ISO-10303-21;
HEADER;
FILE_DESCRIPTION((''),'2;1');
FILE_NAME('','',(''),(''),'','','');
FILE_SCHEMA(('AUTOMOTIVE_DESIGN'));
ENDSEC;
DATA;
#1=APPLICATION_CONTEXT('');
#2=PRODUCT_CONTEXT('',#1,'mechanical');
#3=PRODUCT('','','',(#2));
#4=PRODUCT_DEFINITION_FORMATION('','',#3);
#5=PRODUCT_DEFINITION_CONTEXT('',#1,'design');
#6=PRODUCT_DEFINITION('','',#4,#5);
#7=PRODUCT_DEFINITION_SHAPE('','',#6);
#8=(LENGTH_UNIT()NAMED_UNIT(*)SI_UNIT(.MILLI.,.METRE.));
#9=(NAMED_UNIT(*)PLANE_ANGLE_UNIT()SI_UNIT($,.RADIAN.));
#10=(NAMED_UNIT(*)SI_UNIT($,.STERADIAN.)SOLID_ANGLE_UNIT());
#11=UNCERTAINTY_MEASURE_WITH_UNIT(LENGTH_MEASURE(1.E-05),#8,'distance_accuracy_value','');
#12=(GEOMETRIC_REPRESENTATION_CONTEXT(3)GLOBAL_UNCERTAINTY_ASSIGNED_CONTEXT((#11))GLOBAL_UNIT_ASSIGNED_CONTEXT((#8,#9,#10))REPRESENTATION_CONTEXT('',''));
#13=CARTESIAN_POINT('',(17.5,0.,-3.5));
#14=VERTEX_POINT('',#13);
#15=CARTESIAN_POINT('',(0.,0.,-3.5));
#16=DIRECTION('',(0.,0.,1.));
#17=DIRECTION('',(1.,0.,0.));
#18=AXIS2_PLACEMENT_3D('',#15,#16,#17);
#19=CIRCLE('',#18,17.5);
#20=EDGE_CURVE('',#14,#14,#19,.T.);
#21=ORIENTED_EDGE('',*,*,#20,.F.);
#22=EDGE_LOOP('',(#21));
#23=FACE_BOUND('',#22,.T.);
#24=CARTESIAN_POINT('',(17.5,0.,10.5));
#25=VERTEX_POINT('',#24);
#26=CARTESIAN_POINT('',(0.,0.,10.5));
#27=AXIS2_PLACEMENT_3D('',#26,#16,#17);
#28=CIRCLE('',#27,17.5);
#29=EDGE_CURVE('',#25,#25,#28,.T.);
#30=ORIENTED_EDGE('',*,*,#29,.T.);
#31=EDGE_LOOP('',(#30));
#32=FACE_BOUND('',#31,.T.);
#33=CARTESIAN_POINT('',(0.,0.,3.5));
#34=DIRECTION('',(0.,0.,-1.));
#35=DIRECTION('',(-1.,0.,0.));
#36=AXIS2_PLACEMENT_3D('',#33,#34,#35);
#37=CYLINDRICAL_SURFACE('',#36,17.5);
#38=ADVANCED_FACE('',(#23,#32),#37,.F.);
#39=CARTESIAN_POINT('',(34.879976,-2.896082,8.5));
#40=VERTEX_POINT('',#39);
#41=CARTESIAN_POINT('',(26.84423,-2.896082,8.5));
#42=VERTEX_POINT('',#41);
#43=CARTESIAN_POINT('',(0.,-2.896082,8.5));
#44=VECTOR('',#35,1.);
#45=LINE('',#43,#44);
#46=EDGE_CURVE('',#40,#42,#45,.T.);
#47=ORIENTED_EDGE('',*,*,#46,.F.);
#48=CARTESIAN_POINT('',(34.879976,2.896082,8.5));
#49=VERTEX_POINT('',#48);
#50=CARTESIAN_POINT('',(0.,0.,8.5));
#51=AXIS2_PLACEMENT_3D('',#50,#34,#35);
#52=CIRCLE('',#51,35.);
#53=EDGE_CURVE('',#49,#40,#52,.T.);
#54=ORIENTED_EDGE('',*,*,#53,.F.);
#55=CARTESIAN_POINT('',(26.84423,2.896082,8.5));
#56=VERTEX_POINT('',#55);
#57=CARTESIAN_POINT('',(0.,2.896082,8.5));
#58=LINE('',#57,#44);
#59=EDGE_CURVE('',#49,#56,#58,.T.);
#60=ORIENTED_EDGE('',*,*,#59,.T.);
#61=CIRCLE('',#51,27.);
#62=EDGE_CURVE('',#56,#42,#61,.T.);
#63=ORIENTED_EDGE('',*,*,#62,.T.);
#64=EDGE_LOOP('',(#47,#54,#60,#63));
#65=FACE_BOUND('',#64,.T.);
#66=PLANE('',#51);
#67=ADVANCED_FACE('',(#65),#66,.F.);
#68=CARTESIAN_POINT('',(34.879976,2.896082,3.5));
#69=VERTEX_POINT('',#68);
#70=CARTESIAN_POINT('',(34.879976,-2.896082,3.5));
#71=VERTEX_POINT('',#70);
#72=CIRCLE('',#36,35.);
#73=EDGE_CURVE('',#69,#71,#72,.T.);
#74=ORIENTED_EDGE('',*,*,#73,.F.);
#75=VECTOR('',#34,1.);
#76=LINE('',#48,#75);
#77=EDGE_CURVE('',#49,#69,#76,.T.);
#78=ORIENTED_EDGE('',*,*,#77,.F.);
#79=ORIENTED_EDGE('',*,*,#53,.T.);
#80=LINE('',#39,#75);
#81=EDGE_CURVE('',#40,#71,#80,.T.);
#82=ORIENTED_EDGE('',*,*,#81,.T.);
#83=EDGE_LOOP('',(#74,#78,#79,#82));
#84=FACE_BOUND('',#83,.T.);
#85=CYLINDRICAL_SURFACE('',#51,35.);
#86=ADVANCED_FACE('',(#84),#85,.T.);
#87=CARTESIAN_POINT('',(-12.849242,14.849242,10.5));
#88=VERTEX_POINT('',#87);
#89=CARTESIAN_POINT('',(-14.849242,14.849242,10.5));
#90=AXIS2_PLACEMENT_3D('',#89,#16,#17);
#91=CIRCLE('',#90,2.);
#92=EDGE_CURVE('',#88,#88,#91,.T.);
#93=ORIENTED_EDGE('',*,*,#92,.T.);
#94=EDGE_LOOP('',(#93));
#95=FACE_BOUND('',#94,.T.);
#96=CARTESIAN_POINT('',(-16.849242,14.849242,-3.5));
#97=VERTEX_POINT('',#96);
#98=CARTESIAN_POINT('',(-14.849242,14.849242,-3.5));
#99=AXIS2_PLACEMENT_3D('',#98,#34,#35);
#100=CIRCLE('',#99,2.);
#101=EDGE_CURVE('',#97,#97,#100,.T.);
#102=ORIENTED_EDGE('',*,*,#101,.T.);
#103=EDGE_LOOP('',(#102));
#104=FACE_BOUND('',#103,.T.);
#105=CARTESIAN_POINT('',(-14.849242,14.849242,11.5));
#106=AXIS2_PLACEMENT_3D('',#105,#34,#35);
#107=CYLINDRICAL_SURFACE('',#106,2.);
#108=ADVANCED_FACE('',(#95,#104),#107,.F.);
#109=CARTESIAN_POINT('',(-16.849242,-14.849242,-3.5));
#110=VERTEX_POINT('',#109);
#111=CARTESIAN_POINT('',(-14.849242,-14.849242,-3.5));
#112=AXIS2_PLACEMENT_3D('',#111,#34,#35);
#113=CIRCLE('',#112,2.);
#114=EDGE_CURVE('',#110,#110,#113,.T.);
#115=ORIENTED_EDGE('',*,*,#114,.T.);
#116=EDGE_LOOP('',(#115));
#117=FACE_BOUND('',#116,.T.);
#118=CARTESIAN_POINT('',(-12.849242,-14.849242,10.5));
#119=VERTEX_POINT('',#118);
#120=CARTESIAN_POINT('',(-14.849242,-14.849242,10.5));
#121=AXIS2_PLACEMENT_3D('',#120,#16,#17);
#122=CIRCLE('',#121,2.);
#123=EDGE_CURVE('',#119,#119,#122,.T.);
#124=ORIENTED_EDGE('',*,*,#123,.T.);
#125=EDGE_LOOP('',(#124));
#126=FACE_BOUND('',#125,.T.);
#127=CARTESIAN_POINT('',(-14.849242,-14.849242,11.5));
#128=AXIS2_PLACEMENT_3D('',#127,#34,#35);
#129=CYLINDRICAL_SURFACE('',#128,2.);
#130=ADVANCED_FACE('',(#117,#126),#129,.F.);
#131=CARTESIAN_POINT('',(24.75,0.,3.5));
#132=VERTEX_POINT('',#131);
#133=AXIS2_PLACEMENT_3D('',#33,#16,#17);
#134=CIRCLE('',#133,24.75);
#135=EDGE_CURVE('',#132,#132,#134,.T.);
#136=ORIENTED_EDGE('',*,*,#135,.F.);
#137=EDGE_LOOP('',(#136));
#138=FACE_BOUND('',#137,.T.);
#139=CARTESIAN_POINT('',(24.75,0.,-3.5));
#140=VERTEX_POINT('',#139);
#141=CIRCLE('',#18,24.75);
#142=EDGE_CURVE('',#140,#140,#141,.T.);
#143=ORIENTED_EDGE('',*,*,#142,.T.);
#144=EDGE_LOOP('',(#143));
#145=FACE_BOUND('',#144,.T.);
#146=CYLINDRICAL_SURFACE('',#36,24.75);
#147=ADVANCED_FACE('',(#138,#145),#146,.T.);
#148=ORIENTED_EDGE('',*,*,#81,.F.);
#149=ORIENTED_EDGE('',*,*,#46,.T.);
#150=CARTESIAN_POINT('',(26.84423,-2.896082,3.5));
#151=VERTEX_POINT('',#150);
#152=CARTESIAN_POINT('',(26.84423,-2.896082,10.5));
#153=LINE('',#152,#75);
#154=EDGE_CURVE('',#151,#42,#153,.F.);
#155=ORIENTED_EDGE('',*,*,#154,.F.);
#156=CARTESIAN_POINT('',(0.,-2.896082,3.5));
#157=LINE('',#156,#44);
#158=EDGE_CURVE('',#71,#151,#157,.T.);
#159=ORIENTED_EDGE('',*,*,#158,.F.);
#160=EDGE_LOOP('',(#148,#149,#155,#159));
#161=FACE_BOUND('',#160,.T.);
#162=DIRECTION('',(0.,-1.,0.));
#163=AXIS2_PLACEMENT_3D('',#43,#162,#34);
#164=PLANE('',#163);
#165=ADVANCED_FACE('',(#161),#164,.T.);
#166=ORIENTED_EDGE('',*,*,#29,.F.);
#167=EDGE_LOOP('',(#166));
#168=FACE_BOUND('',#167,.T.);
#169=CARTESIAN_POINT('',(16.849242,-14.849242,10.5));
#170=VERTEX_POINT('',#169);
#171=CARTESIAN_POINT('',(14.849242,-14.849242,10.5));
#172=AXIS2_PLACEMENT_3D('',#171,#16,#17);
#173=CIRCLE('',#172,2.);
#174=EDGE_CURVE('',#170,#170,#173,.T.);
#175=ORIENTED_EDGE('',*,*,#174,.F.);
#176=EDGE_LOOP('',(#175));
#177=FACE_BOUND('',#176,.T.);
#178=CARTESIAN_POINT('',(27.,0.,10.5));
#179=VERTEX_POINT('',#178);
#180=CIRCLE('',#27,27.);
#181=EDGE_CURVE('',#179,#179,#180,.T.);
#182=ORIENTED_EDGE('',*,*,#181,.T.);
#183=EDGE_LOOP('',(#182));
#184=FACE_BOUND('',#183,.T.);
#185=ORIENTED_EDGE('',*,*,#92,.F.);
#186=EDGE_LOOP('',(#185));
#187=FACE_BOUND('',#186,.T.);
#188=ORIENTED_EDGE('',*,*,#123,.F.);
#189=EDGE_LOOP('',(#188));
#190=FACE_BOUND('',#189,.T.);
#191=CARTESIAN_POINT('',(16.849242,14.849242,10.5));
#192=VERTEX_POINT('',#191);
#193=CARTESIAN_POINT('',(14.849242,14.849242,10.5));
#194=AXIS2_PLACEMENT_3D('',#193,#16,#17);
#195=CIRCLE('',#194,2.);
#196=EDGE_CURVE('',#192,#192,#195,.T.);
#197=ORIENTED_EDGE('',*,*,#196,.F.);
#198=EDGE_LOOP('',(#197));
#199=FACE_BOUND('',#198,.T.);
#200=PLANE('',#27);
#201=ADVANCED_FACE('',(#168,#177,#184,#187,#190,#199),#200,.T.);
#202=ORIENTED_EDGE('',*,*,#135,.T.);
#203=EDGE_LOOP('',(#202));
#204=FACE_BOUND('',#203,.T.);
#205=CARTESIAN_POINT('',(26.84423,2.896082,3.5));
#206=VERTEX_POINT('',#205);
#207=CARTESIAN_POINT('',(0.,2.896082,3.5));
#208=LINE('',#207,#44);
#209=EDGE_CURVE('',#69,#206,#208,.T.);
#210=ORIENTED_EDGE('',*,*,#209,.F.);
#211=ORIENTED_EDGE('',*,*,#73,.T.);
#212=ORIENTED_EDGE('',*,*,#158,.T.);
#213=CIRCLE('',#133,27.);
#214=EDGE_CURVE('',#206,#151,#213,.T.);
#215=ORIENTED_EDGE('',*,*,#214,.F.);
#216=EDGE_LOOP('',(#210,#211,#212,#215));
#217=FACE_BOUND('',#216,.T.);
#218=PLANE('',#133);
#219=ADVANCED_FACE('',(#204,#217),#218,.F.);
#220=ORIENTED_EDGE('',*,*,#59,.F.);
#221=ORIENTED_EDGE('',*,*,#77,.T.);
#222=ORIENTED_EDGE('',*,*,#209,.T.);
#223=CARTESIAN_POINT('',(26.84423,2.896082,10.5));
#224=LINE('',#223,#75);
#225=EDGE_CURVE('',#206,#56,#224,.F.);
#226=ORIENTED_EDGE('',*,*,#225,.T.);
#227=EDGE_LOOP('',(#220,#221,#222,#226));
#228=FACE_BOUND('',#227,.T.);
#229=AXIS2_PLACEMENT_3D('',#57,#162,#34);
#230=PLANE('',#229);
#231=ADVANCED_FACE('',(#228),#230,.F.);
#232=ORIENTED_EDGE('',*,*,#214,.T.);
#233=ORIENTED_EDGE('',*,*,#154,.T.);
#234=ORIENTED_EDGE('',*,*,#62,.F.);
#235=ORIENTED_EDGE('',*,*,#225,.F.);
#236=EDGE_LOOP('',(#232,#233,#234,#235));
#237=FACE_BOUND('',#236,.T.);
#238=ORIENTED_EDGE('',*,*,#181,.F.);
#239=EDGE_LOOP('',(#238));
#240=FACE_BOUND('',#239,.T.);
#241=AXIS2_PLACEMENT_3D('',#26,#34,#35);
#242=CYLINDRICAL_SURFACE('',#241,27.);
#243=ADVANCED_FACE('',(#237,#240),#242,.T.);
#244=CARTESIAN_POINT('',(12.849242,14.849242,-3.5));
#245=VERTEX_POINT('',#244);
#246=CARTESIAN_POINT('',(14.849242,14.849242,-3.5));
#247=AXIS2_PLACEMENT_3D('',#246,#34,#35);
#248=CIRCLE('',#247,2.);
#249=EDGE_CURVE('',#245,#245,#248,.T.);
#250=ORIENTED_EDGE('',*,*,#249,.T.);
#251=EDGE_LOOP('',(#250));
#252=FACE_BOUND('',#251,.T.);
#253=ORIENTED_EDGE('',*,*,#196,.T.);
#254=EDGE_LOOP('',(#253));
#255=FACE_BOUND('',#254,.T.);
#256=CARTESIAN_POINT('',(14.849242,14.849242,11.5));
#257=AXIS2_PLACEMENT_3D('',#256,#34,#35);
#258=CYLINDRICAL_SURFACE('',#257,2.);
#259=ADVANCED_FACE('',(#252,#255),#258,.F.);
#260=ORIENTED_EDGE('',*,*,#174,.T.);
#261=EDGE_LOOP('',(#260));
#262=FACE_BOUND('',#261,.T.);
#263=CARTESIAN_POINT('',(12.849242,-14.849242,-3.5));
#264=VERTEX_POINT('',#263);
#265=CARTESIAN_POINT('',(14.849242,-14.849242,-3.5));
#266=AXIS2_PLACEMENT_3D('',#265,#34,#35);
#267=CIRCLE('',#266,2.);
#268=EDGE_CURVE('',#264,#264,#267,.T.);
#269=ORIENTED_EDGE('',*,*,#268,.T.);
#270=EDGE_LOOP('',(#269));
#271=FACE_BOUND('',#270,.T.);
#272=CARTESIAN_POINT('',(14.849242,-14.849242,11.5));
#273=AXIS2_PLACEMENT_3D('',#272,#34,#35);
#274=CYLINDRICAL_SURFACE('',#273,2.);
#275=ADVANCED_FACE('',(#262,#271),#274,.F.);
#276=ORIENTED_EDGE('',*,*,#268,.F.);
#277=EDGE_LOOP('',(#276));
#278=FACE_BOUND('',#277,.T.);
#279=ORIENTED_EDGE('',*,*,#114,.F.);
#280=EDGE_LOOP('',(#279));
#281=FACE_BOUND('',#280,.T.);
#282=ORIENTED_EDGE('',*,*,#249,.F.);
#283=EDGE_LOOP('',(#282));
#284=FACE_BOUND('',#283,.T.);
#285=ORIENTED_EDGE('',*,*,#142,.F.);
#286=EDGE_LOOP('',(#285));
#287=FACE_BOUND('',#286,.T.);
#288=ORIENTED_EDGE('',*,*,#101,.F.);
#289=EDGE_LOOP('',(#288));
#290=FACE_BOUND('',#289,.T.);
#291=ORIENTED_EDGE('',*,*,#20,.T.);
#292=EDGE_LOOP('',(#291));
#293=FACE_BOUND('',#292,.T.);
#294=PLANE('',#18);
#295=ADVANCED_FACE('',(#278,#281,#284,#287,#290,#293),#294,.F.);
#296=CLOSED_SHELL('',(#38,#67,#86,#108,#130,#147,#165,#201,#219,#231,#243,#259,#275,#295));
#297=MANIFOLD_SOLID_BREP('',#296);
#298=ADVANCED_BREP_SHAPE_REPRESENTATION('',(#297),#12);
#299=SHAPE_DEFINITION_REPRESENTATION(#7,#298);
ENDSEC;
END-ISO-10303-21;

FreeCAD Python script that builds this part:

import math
import FreeCAD as App
import Part
import Sketcher
Q = App.Units.Quantity

doc = App.newDocument("Part")
body = doc.addObject("PartDesign::Body", "Body")

# Sketch on XY plane
sketch1 = doc.addObject("Sketcher::SketchObject", "Sketch")
body.addObject(sketch1)
sketch1.AttachmentSupport = (doc.XY_Plane, [""])
sketch1.MapMode = "FlatFace"
sketch1.addGeometry([
    Part.Circle(App.Vector(0, 0, 0), App.Vector(0, 0, 1), 25),
    Part.Circle(App.Vector(0, 0, 0), App.Vector(0, 0, 1), 18),
], False)
sketch1.addConstraint([
    Sketcher.Constraint("Coincident", 0, 3, -1, 1),
    Sketcher.Constraint("Coincident", 1, 3, -1, 1),
    Sketcher.Constraint("Diameter", 1, Q("35 mm")),
    Sketcher.Constraint("Diameter", 0, Q("49.5 mm")),
])
pad1 = doc.addObject("PartDesign::Pad", "Pad")
body.addObject(pad1)
pad1.Profile = sketch1
pad1.Length = 7
pad1.Midplane = True

# Sketch on XY plane
sketch2 = doc.addObject("Sketcher::SketchObject", "Sketch001")
body.addObject(sketch2)
sketch2.AttachmentSupport = (doc.XY_Plane, [""])
sketch2.MapMode = "FlatFace"
sketch2.AttachmentOffset = App.Placement(App.Vector(0, 0, 3.5), App.Rotation())
sketch2.addGeometry([
    Part.Circle(App.Vector(0, 0, 0), App.Vector(0, 0, 1), 27),
    Part.Circle(App.Vector(0, 0, 0), App.Vector(0, 0, 1), 18),
], False)
sketch2.addConstraint([
    Sketcher.Constraint("Coincident", 0, 3, -1, 1),
    Sketcher.Constraint("Coincident", 1, 3, -1, 1),
    Sketcher.Constraint("Diameter", 0, Q("54 mm")),
    Sketcher.Constraint("Diameter", 1, Q("35 mm")),
])
pad2 = doc.addObject("PartDesign::Pad", "Pad001")
body.addObject(pad2)
pad2.Profile = sketch2
pad2.Length = 7

# Sketch on XY plane
sketch3 = doc.addObject("Sketcher::SketchObject", "Sketch002")
body.addObject(sketch3)
sketch3.AttachmentSupport = (doc.XY_Plane, [""])
sketch3.MapMode = "FlatFace"
sketch3.AttachmentOffset = App.Placement(App.Vector(0, 0, -3.5), App.Rotation())
sketch3.addGeometry([
    Part.Circle(App.Vector(-14.8, 14.8, 0), App.Vector(0, 0, 1), 2),
    Part.Circle(App.Vector(-14.8, -14.8, 0), App.Vector(0, 0, 1), 2),
    Part.Circle(App.Vector(14.8, -14.8, 0), App.Vector(0, 0, 1), 2),
    Part.Circle(App.Vector(14.8, 14.8, 0), App.Vector(0, 0, 1), 2),
], False)
sketch3.addConstraint([
    Sketcher.Constraint("Equal", 0, 1),
    Sketcher.Constraint("Equal", 1, 2),
    Sketcher.Constraint("Equal", 2, 3),
    Sketcher.Constraint("Symmetric", 0, 3, 2, 3, -1, 1),
    Sketcher.Constraint("Symmetric", 1, 3, 3, 3, -1, 1),
    Sketcher.Constraint("Symmetric", 1, 3, 2, 3, -2),
    Sketcher.Constraint("Diameter", 0, Q("4 mm")),
    Sketcher.Constraint("DistanceX", 0, 3, -1, 1, Q("14.849242 mm")),
    Sketcher.Constraint("DistanceY", -1, 1, 0, 3, Q("14.849242 mm")),
])
pocket1 = doc.addObject("PartDesign::Pocket", "Pocket")
body.addObject(pocket1)
pocket1.Profile = sketch3
pocket1.Length = 15
pocket1.Reversed = True

# Sketch on XY plane
sketch4 = doc.addObject("Sketcher::SketchObject", "Sketch003")
body.addObject(sketch4)
sketch4.AttachmentSupport = (doc.XY_Plane, [""])
sketch4.MapMode = "FlatFace"
sketch4.AttachmentOffset = App.Placement(App.Vector(0, 0, 3.5), App.Rotation())
sketch4.addGeometry([
    Part.ArcOfCircle(Part.Circle(App.Vector(0, 0, 0), App.Vector(0, 0, 1), 27), math.radians(6), math.radians(180)),  # 0
    Part.LineSegment(App.Vector(27, 3, 0), App.Vector(35, 3, 0)),  # 1
    Part.ArcOfCircle(Part.Circle(App.Vector(0, 0, 0), App.Vector(0, 0, 1), 35), math.radians(-4.75), math.radians(4.75)),  # 2
    Part.LineSegment(App.Vector(35, -3, 0), App.Vector(27, -3, 0)),  # 3
    Part.ArcOfCircle(Part.Circle(App.Vector(0, 0, 0), App.Vector(0, 0, 1), 27), math.radians(180), math.radians(354)),  # 4
    Part.ArcOfCircle(Part.Circle(App.Vector(0, 0, 0), App.Vector(0, 0, 1), 25), math.radians(7), math.radians(180)),  # 5
    Part.ArcOfCircle(Part.Circle(App.Vector(0, 0, 0), App.Vector(0, 0, 1), 25), math.radians(180), math.radians(353)),  # 6
    Part.ArcOfCircle(Part.Circle(App.Vector(0, 0, 0), App.Vector(0, 0, 1), 25), math.radians(-6.72), math.radians(6.72)),  # 7
], False)
sketch4.addConstraint([
    Sketcher.Constraint("Coincident", 0, 1, 1, 1),
    Sketcher.Constraint("Coincident", 1, 2, 2, 2),
    Sketcher.Constraint("Coincident", 2, 1, 3, 1),
    Sketcher.Constraint("Coincident", 3, 2, 4, 2),
    Sketcher.Constraint("Tangent", 4, 1, 0, 2),
    Sketcher.Constraint("Tangent", 5, 2, 6, 1),
    Sketcher.Constraint("Tangent", 6, 2, 7, 1),
    Sketcher.Constraint("Tangent", 7, 2, 5, 1),
    Sketcher.Constraint("Horizontal", 1),
    Sketcher.Constraint("Horizontal", 3),
    Sketcher.Constraint("Coincident", 0, 3, -1, 1),
    Sketcher.Constraint("Coincident", 2, 3, -1, 1),
    Sketcher.Constraint("Coincident", 5, 3, -1, 1),
    Sketcher.Constraint("Equal", 0, 4),
    Sketcher.Constraint("PointOnObject", 4, 1, -1),
    Sketcher.Constraint("PointOnObject", 5, 2, -1),
    Sketcher.Constraint("Horizontal", 3, 2, 6, 2),
    Sketcher.Constraint("Horizontal", 1, 2, 7, 2),
    Sketcher.Constraint("Vertical", 1, 2, 2, 1),
    Sketcher.Constraint("Radius", 0, Q("27 mm")),
    Sketcher.Constraint("Radius", 2, Q("35 mm")),
    Sketcher.Constraint("Radius", 5, Q("24.75 mm")),
    Sketcher.Constraint("DistanceX", 6, 2, 2, 1, Q("10.3 mm")),
])
pad3 = doc.addObject("PartDesign::Pad", "Pad002")
body.addObject(pad3)
pad3.Profile = sketch4
pad3.Length = 5

doc.recompute()
